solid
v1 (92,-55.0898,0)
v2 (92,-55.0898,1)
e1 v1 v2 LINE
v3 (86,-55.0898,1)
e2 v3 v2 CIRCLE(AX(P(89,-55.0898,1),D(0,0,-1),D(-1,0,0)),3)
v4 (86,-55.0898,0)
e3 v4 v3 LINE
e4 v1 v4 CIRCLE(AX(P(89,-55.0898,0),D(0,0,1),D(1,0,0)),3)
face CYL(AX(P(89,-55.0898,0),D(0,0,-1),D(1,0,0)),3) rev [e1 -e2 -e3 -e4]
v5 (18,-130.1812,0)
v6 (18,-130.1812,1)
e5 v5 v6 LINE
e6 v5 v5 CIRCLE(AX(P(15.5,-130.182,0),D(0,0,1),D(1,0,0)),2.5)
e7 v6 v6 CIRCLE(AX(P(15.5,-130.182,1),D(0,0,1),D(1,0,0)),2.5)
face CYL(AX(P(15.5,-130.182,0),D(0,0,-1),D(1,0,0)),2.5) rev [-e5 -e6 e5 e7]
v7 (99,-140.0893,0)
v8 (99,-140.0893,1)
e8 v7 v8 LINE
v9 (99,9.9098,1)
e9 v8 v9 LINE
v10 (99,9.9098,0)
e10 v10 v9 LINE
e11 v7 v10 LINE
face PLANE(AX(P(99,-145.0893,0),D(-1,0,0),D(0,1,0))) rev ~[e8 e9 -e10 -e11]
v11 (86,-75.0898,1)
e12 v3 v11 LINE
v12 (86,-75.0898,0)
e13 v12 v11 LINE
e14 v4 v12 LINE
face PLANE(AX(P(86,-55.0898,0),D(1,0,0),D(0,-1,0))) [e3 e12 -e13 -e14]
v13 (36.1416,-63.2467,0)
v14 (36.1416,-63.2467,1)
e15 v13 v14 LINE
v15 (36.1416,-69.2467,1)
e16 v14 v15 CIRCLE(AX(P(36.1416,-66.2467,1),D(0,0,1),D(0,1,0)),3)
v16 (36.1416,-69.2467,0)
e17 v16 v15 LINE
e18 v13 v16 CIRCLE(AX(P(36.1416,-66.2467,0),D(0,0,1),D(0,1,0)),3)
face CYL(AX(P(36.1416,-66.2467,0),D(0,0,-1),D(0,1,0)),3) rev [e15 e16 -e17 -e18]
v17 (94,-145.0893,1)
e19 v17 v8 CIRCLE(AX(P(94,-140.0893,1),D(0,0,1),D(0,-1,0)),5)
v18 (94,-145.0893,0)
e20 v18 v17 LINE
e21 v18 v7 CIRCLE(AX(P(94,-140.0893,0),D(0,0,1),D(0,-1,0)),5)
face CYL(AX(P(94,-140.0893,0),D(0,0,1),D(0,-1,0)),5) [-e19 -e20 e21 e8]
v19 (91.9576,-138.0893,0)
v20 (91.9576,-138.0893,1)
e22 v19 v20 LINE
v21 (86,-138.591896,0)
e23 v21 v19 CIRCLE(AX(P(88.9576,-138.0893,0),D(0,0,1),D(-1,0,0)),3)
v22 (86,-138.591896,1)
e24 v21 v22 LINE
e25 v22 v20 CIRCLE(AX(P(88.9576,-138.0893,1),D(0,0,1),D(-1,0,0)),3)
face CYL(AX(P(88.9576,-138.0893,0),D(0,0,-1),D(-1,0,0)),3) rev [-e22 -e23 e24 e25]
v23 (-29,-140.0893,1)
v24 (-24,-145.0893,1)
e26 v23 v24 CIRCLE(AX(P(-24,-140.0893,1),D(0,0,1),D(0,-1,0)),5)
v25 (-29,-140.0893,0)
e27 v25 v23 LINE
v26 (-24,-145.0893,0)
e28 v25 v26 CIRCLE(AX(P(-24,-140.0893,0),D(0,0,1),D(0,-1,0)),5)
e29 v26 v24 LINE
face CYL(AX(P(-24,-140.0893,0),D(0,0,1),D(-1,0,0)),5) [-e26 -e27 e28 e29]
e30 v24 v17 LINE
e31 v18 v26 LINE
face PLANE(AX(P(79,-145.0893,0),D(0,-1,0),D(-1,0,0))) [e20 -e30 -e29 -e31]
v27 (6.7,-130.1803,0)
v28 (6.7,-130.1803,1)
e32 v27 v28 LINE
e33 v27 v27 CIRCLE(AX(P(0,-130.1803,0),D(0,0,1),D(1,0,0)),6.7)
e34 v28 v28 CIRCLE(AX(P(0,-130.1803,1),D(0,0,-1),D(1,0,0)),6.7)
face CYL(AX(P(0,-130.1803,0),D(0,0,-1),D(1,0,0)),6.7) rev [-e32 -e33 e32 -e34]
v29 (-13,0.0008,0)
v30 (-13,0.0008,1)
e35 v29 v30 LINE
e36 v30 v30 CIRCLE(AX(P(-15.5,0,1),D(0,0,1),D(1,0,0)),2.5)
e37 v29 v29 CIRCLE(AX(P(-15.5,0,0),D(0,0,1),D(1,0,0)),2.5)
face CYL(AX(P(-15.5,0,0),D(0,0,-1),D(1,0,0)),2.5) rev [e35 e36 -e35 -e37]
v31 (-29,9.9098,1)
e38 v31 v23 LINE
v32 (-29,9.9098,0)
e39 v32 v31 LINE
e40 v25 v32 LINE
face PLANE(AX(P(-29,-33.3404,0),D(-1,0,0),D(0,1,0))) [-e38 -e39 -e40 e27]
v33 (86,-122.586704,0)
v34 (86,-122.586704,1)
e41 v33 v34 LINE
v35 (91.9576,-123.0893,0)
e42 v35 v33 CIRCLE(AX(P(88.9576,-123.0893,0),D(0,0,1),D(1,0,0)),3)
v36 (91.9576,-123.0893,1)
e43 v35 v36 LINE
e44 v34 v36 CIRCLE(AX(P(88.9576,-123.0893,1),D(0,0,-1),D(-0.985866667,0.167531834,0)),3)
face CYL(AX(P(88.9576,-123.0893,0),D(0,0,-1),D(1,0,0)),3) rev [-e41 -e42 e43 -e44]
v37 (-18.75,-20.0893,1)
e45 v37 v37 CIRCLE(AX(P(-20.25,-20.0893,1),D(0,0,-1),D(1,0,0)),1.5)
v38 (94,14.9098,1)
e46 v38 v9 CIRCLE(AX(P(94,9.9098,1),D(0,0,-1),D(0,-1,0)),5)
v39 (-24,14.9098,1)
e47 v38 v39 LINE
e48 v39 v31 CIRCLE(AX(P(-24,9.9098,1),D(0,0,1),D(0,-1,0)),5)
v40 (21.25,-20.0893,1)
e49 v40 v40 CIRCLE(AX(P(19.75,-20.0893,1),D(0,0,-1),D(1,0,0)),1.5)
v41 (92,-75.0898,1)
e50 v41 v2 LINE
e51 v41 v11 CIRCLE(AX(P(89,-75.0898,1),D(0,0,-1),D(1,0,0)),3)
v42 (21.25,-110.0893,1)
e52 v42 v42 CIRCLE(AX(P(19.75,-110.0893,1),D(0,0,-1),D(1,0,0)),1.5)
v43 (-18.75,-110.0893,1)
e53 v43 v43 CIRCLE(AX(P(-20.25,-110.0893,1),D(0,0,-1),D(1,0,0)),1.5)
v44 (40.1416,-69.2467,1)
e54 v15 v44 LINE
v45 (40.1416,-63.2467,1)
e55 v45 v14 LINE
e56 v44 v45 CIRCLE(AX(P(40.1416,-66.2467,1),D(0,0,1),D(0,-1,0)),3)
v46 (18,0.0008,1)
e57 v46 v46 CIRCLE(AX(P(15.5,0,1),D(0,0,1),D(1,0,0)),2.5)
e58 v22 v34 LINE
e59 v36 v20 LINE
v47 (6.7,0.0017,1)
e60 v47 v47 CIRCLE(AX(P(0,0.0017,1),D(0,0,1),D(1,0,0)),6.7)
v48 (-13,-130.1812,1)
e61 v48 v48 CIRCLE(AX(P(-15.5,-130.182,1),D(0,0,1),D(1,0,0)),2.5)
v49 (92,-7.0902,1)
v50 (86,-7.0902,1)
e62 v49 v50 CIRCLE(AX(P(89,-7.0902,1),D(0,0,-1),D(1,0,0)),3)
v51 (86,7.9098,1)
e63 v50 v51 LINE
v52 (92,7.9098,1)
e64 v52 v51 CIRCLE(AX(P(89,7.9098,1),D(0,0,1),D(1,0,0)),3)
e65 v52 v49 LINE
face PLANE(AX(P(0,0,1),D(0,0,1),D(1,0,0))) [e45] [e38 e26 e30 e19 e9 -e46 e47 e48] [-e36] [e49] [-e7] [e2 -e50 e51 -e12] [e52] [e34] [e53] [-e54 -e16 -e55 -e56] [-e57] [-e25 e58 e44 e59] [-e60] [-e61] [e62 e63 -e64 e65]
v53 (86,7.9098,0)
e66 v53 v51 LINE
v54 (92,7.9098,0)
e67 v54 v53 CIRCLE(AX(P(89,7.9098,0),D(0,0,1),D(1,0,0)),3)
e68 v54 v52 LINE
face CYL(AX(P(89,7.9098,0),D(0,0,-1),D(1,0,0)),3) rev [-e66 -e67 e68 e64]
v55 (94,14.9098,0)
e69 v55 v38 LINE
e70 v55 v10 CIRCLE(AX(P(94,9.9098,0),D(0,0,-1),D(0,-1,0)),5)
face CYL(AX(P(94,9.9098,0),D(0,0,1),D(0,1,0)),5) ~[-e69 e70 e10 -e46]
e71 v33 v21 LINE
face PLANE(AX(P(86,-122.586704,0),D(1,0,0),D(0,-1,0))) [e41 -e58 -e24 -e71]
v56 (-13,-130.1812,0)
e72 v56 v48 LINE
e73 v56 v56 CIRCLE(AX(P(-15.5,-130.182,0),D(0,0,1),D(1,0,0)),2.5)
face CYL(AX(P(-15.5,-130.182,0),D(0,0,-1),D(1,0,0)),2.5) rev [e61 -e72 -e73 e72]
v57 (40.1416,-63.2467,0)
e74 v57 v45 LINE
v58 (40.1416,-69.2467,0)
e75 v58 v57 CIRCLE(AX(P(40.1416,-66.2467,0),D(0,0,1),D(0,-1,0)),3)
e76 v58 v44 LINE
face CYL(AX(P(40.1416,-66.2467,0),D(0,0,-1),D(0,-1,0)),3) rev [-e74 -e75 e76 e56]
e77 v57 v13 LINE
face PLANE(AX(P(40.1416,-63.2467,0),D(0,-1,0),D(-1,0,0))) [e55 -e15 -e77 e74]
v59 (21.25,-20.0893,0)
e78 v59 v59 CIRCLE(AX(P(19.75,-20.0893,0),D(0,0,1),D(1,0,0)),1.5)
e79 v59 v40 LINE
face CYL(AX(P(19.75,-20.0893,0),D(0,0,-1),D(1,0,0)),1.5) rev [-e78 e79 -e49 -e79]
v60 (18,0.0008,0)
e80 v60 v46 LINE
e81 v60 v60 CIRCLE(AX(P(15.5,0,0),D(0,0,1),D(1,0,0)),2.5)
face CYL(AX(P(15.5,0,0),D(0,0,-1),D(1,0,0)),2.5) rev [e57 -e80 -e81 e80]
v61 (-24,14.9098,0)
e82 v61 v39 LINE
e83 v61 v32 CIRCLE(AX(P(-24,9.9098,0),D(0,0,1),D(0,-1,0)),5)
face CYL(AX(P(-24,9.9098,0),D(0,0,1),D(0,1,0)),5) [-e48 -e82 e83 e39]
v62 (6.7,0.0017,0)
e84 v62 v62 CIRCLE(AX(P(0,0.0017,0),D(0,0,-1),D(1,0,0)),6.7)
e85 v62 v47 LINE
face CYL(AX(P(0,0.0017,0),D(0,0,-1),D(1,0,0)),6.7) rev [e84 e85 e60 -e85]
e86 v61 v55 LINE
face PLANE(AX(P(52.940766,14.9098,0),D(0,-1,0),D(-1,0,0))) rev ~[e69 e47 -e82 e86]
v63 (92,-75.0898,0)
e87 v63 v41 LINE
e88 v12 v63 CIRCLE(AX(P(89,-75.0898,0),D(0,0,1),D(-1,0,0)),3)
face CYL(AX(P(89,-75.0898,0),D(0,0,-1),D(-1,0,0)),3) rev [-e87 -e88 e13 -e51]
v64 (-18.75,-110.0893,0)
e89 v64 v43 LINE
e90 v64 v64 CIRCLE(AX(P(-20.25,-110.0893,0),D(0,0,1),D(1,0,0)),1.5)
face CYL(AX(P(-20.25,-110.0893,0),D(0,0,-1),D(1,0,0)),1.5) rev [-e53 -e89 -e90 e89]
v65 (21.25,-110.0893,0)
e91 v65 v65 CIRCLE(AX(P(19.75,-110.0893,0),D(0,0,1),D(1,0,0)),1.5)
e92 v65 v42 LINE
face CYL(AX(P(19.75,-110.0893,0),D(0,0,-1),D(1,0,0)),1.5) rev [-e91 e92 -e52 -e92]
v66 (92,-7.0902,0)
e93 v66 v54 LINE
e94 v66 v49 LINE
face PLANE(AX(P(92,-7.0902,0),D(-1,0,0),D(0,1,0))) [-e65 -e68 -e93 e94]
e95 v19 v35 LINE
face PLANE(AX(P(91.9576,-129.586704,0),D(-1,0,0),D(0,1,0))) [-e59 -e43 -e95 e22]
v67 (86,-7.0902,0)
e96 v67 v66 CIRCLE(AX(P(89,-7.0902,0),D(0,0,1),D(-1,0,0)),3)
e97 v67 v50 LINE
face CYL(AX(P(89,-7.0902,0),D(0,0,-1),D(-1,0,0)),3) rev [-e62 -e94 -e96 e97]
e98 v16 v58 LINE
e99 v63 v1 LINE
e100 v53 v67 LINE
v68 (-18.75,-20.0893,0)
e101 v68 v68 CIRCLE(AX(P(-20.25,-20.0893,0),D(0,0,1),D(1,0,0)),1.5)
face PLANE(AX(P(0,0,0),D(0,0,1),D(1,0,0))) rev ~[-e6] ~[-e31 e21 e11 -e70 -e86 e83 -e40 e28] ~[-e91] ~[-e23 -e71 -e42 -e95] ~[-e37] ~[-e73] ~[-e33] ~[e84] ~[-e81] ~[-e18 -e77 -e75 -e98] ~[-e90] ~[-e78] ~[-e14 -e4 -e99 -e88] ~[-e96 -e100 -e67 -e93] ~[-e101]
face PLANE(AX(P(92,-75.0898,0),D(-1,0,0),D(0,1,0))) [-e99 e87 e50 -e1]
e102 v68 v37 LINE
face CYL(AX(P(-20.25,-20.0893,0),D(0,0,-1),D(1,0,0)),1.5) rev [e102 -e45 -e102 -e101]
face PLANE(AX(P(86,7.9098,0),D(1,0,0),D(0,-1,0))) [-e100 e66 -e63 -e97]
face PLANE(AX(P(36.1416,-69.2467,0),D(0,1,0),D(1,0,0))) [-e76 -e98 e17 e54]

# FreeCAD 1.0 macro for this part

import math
import FreeCAD as App
import Part
import Sketcher

V = App.Vector


def edges_at(feature, points):
    """Names of the edges that pass closest to the given points."""
    edges = feature.Shape.Edges
    near = lambda p: min(range(len(edges)), key=lambda i: edges[i].distToShape(Part.Vertex(*p))[0])
    return sorted({f"Edge{near(p) + 1}" for p in points})


def add_polygon(sketch, points):
    """Adds a closed chain of lines whose ends are joined by coincident constraints."""
    first, n = sketch.GeometryCount, len(points)
    for a, b in zip(points, points[1:] + points[:1]):
        sketch.addGeometry(Part.LineSegment(App.Vector(*a, 0), App.Vector(*b, 0)), False)
    for i in range(n):
        sketch.addConstraint(Sketcher.Constraint("Coincident", first + i, 2, first + (i + 1) % n, 1))

doc = App.newDocument("Part")
body = doc.addObject("PartDesign::Body", "Body")

# Sketch on XY plane
sketch1 = body.newObject("Sketcher::SketchObject", "Sketch")
sketch1.AttachmentSupport = (doc.getObject("XY_Plane"), [""])
sketch1.MapMode = "FlatFace"
add_polygon(sketch1, [(-29, 14.9098), (-29, -145.0893), (99, -145.0893), (99, 14.9098)])  # lines 0-3
sketch1.addGeometry(Part.Circle(V(0, 0.0017, 0), V(0, 0, 1), 6.7), False)  # 4
sketch1.addGeometry(Part.Circle(V(15.5, 0, 0), V(0, 0, 1), 2.5), False)  # 5
sketch1.addGeometry(Part.Circle(V(-15.5, 0, 0), V(0, 0, 1), 2.5), False)  # 6
sketch1.addGeometry(Part.Circle(V(19.75, -20.0893, 0), V(0, 0, 1), 1.5), False)  # 7
sketch1.addGeometry(Part.Circle(V(-20.25, -20.0893, 0), V(0, 0, 1), 1.5), False)  # 8
sketch1.addGeometry(Part.LineSegment(V(36.1416, -63.2467, 0), V(40.1416, -63.2467, 0)), False)  # 9
sketch1.addGeometry(Part.ArcOfCircle(Part.Circle(V(40.1416, -66.2467, 0), V(0, 0, 1), 3), math.radians(-90), math.radians(90)), False)  # 10
sketch1.addGeometry(Part.LineSegment(V(40.1416, -69.2467, 0), V(36.1416, -69.2467, 0)), False)  # 11
sketch1.addGeometry(Part.ArcOfCircle(Part.Circle(V(36.1416, -66.2467, 0), V(0, 0, 1), 3), math.radians(90), math.radians(270)), False)  # 12
sketch1.addGeometry(Part.ArcOfCircle(Part.Circle(V(89, 7.9098, 0), V(0, 0, 1), 3), math.radians(0), math.radians(180)), False)  # 13
sketch1.addGeometry(Part.LineSegment(V(92, 7.9098, 0), V(92, -7.0902, 0)), False)  # 14
sketch1.addGeometry(Part.ArcOfCircle(Part.Circle(V(89, -7.0902, 0), V(0, 0, 1), 3), math.radians(180), math.radians(360)), False)  # 15
sketch1.addGeometry(Part.LineSegment(V(86, -7.0902, 0), V(86, 7.9098, 0)), False)  # 16
sketch1.addGeometry(Part.Circle(V(19.75, -110.0893, 0), V(0, 0, 1), 1.5), False)  # 17
sketch1.addGeometry(Part.LineSegment(V(92, -55.0898, 0), V(92, -75.0898, 0)), False)  # 18
sketch1.addGeometry(Part.ArcOfCircle(Part.Circle(V(89, -75.0898, 0), V(0, 0, 1), 3), math.radians(180), math.radians(360)), False)  # 19
sketch1.addGeometry(Part.LineSegment(V(86, -75.0898, 0), V(86, -55.0898, 0)), False)  # 20
sketch1.addGeometry(Part.ArcOfCircle(Part.Circle(V(89, -55.0898, 0), V(0, 0, 1), 3), math.radians(0), math.radians(180)), False)  # 21
sketch1.addGeometry(Part.LineSegment(V(91.9576, -123.0893, 0), V(91.9576, -138.0893, 0)), False)  # 22
sketch1.addGeometry(Part.ArcOfCircle(Part.Circle(V(88.9576, -138.0893, 0), V(0, 0, 1), 3), math.radians(-170.355654), math.radians(0)), False)  # 23
sketch1.addGeometry(Part.LineSegment(V(86, -138.591896, 0), V(86, -122.586704, 0)), False)  # 24
sketch1.addGeometry(Part.ArcOfCircle(Part.Circle(V(88.9576, -123.0893, 0), V(0, 0, 1), 3), math.radians(0), math.radians(170.355654)), False)  # 25
sketch1.addGeometry(Part.Circle(V(-20.25, -110.0893, 0), V(0, 0, 1), 1.5), False)  # 26
sketch1.addGeometry(Part.Circle(V(15.5, -130.182, 0), V(0, 0, 1), 2.5), False)  # 27
sketch1.addGeometry(Part.Circle(V(-15.5, -130.182, 0), V(0, 0, 1), 2.5), False)  # 28
sketch1.addGeometry(Part.Circle(V(0, -130.1803, 0), V(0, 0, 1), 6.7), False)  # 29
sketch1.addConstraint([
    Sketcher.Constraint("Tangent", 9, 2, 10, 2),
    Sketcher.Constraint("Tangent", 10, 1, 11, 1),
    Sketcher.Constraint("Tangent", 11, 2, 12, 2),
    Sketcher.Constraint("Tangent", 12, 1, 9, 1),
    Sketcher.Constraint("Tangent", 13, 1, 14, 1),
    Sketcher.Constraint("Tangent", 14, 2, 15, 2),
    Sketcher.Constraint("Tangent", 15, 1, 16, 1),
    Sketcher.Constraint("Tangent", 16, 2, 13, 2),
    Sketcher.Constraint("Tangent", 18, 2, 19, 2),
    Sketcher.Constraint("Tangent", 19, 1, 20, 1),
    Sketcher.Constraint("Tangent", 20, 2, 21, 2),
    Sketcher.Constraint("Tangent", 21, 1, 18, 1),
    Sketcher.Constraint("Tangent", 22, 2, 23, 2),
    Sketcher.Constraint("Coincident", 23, 1, 24, 1),
    Sketcher.Constraint("Coincident", 24, 2, 25, 2),
    Sketcher.Constraint("Tangent", 25, 1, 22, 1),
    Sketcher.Constraint("Vertical", 0),
    Sketcher.Constraint("Horizontal", 1),
    Sketcher.Constraint("Vertical", 2),
    Sketcher.Constraint("Horizontal", 3),
    Sketcher.Constraint("Horizontal", 9),
    Sketcher.Constraint("Horizontal", 11),
    Sketcher.Constraint("Vertical", 14),
    Sketcher.Constraint("Vertical", 16),
    Sketcher.Constraint("Vertical", 18),
    Sketcher.Constraint("Vertical", 20),
    Sketcher.Constraint("Vertical", 22),
    Sketcher.Constraint("Vertical", 24),
    Sketcher.Constraint("Equal", 5, 6),
    Sketcher.Constraint("Equal", 7, 8),
    Sketcher.Constraint("Equal", 12, 13),
    Sketcher.Constraint("Equal", 8, 17),
    Sketcher.Constraint("Equal", 15, 19),
    Sketcher.Constraint("Equal", 21, 23),
    Sketcher.Constraint("Equal", 23, 25),
    Sketcher.Constraint("Equal", 17, 26),
    Sketcher.Constraint("Equal", 6, 27),
    Sketcher.Constraint("Equal", 27, 28),
    Sketcher.Constraint("Equal", 4, 29),
    Sketcher.Constraint("Symmetric", 5, 3, 6, 3, -1, 1),
    Sketcher.Constraint("Symmetric", 27, 3, 28, 3, -2),
    Sketcher.Constraint("PointOnObject", 4, 3, -2),
    Sketcher.Constraint("PointOnObject", 5, 3, -1),
    Sketcher.Constraint("PointOnObject", 29, 3, -2),
    Sketcher.Constraint("Horizontal", 7, 3, 8, 3),
    Sketcher.Constraint("Horizontal", 17, 3, 26, 3),
    Sketcher.Constraint("Vertical", 7, 3, 17, 3),
    Sketcher.Constraint("Vertical", 15, 3, 19, 3),
    Sketcher.Constraint("Vertical", 8, 3, 26, 3),
    Sketcher.Constraint("Vertical", 5, 3, 27, 3),
    Sketcher.Constraint("Vertical", 20, 2, 23, 1),
    Sketcher.Constraint("Equal", 16, 22),
    Sketcher.Constraint("Diameter", 7, 3.0),
    Sketcher.Constraint("Radius", 10, 3.0),
    Sketcher.Constraint("DistanceY", 14, 2, 14, 1, 15.0),
    Sketcher.Constraint("DistanceY", 18, 2, 18, 1, 20.0),
    Sketcher.Constraint("Diameter", 5, 5.0),
    Sketcher.Constraint("DistanceX", 8, 3, 7, 3, 40.0),
    Sketcher.Constraint("DistanceY", 17, 3, 7, 3, 90.0),
    Sketcher.Constraint("DistanceY", 1, 2, 23, 3, 7.0),
    Sketcher.Constraint("DistanceY", 13, 3, 2, 2, 7.0),
    Sketcher.Constraint("DistanceX", 13, 1, 2, 2, 7.0),
    Sketcher.Constraint("Diameter", 4, 13.4),
    Sketcher.Constraint("DistanceX", 1, 1, 1, 2, 128.0),
    Sketcher.Constraint("DistanceX", 9, 1, 9, 2, 4.0),
    Sketcher.Constraint("DistanceY", 0, 2, 0, 1, 159.999),
    Sketcher.Constraint("DistanceX", -1, 1, 13, 3, 89.0),
    Sketcher.Constraint("DistanceX", 6, 3, 5, 3, 31.0),
    Sketcher.Constraint("DistanceY", 23, 3, 17, 3, 28.0),
    Sketcher.Constraint("DistanceX", -1, 1, 7, 3, 19.75),
    Sketcher.Constraint("DistanceY", 24, 1, 24, 2, 16.0052),
    Sketcher.Constraint("DistanceY", 27, 3, -1, 1, 130.182),
    Sketcher.Constraint("DistanceY", 23, 1, -1, 1, 138.592),
    Sketcher.Constraint("DistanceY", 7, 3, 4, 3, 20.091),
    Sketcher.Constraint("DistanceY", 19, 3, 10, 3, 8.843),
    Sketcher.Constraint("DistanceX", 10, 3, 23, 3, 48.816),
    Sketcher.Constraint("DistanceY", 29, 3, 17, 3, 20.091),
    Sketcher.Constraint("DistanceY", 23, 1, 19, 1, 63.502),
])
pad1 = body.newObject("PartDesign::Pad", "Pad")
pad1.Profile = sketch1
pad1.Length = 1
doc.recompute()

fillet = body.newObject("PartDesign::Fillet", "Fillet")
fillet.Base = (pad1, edges_at(pad1, [
    (-29, -145.089, 0.5),
    (-29, 14.91, 0.5),
    (99, -145.089, 0.5),
    (99, 14.91, 0.5),
]))
fillet.Radius = 5

doc.recompute()
